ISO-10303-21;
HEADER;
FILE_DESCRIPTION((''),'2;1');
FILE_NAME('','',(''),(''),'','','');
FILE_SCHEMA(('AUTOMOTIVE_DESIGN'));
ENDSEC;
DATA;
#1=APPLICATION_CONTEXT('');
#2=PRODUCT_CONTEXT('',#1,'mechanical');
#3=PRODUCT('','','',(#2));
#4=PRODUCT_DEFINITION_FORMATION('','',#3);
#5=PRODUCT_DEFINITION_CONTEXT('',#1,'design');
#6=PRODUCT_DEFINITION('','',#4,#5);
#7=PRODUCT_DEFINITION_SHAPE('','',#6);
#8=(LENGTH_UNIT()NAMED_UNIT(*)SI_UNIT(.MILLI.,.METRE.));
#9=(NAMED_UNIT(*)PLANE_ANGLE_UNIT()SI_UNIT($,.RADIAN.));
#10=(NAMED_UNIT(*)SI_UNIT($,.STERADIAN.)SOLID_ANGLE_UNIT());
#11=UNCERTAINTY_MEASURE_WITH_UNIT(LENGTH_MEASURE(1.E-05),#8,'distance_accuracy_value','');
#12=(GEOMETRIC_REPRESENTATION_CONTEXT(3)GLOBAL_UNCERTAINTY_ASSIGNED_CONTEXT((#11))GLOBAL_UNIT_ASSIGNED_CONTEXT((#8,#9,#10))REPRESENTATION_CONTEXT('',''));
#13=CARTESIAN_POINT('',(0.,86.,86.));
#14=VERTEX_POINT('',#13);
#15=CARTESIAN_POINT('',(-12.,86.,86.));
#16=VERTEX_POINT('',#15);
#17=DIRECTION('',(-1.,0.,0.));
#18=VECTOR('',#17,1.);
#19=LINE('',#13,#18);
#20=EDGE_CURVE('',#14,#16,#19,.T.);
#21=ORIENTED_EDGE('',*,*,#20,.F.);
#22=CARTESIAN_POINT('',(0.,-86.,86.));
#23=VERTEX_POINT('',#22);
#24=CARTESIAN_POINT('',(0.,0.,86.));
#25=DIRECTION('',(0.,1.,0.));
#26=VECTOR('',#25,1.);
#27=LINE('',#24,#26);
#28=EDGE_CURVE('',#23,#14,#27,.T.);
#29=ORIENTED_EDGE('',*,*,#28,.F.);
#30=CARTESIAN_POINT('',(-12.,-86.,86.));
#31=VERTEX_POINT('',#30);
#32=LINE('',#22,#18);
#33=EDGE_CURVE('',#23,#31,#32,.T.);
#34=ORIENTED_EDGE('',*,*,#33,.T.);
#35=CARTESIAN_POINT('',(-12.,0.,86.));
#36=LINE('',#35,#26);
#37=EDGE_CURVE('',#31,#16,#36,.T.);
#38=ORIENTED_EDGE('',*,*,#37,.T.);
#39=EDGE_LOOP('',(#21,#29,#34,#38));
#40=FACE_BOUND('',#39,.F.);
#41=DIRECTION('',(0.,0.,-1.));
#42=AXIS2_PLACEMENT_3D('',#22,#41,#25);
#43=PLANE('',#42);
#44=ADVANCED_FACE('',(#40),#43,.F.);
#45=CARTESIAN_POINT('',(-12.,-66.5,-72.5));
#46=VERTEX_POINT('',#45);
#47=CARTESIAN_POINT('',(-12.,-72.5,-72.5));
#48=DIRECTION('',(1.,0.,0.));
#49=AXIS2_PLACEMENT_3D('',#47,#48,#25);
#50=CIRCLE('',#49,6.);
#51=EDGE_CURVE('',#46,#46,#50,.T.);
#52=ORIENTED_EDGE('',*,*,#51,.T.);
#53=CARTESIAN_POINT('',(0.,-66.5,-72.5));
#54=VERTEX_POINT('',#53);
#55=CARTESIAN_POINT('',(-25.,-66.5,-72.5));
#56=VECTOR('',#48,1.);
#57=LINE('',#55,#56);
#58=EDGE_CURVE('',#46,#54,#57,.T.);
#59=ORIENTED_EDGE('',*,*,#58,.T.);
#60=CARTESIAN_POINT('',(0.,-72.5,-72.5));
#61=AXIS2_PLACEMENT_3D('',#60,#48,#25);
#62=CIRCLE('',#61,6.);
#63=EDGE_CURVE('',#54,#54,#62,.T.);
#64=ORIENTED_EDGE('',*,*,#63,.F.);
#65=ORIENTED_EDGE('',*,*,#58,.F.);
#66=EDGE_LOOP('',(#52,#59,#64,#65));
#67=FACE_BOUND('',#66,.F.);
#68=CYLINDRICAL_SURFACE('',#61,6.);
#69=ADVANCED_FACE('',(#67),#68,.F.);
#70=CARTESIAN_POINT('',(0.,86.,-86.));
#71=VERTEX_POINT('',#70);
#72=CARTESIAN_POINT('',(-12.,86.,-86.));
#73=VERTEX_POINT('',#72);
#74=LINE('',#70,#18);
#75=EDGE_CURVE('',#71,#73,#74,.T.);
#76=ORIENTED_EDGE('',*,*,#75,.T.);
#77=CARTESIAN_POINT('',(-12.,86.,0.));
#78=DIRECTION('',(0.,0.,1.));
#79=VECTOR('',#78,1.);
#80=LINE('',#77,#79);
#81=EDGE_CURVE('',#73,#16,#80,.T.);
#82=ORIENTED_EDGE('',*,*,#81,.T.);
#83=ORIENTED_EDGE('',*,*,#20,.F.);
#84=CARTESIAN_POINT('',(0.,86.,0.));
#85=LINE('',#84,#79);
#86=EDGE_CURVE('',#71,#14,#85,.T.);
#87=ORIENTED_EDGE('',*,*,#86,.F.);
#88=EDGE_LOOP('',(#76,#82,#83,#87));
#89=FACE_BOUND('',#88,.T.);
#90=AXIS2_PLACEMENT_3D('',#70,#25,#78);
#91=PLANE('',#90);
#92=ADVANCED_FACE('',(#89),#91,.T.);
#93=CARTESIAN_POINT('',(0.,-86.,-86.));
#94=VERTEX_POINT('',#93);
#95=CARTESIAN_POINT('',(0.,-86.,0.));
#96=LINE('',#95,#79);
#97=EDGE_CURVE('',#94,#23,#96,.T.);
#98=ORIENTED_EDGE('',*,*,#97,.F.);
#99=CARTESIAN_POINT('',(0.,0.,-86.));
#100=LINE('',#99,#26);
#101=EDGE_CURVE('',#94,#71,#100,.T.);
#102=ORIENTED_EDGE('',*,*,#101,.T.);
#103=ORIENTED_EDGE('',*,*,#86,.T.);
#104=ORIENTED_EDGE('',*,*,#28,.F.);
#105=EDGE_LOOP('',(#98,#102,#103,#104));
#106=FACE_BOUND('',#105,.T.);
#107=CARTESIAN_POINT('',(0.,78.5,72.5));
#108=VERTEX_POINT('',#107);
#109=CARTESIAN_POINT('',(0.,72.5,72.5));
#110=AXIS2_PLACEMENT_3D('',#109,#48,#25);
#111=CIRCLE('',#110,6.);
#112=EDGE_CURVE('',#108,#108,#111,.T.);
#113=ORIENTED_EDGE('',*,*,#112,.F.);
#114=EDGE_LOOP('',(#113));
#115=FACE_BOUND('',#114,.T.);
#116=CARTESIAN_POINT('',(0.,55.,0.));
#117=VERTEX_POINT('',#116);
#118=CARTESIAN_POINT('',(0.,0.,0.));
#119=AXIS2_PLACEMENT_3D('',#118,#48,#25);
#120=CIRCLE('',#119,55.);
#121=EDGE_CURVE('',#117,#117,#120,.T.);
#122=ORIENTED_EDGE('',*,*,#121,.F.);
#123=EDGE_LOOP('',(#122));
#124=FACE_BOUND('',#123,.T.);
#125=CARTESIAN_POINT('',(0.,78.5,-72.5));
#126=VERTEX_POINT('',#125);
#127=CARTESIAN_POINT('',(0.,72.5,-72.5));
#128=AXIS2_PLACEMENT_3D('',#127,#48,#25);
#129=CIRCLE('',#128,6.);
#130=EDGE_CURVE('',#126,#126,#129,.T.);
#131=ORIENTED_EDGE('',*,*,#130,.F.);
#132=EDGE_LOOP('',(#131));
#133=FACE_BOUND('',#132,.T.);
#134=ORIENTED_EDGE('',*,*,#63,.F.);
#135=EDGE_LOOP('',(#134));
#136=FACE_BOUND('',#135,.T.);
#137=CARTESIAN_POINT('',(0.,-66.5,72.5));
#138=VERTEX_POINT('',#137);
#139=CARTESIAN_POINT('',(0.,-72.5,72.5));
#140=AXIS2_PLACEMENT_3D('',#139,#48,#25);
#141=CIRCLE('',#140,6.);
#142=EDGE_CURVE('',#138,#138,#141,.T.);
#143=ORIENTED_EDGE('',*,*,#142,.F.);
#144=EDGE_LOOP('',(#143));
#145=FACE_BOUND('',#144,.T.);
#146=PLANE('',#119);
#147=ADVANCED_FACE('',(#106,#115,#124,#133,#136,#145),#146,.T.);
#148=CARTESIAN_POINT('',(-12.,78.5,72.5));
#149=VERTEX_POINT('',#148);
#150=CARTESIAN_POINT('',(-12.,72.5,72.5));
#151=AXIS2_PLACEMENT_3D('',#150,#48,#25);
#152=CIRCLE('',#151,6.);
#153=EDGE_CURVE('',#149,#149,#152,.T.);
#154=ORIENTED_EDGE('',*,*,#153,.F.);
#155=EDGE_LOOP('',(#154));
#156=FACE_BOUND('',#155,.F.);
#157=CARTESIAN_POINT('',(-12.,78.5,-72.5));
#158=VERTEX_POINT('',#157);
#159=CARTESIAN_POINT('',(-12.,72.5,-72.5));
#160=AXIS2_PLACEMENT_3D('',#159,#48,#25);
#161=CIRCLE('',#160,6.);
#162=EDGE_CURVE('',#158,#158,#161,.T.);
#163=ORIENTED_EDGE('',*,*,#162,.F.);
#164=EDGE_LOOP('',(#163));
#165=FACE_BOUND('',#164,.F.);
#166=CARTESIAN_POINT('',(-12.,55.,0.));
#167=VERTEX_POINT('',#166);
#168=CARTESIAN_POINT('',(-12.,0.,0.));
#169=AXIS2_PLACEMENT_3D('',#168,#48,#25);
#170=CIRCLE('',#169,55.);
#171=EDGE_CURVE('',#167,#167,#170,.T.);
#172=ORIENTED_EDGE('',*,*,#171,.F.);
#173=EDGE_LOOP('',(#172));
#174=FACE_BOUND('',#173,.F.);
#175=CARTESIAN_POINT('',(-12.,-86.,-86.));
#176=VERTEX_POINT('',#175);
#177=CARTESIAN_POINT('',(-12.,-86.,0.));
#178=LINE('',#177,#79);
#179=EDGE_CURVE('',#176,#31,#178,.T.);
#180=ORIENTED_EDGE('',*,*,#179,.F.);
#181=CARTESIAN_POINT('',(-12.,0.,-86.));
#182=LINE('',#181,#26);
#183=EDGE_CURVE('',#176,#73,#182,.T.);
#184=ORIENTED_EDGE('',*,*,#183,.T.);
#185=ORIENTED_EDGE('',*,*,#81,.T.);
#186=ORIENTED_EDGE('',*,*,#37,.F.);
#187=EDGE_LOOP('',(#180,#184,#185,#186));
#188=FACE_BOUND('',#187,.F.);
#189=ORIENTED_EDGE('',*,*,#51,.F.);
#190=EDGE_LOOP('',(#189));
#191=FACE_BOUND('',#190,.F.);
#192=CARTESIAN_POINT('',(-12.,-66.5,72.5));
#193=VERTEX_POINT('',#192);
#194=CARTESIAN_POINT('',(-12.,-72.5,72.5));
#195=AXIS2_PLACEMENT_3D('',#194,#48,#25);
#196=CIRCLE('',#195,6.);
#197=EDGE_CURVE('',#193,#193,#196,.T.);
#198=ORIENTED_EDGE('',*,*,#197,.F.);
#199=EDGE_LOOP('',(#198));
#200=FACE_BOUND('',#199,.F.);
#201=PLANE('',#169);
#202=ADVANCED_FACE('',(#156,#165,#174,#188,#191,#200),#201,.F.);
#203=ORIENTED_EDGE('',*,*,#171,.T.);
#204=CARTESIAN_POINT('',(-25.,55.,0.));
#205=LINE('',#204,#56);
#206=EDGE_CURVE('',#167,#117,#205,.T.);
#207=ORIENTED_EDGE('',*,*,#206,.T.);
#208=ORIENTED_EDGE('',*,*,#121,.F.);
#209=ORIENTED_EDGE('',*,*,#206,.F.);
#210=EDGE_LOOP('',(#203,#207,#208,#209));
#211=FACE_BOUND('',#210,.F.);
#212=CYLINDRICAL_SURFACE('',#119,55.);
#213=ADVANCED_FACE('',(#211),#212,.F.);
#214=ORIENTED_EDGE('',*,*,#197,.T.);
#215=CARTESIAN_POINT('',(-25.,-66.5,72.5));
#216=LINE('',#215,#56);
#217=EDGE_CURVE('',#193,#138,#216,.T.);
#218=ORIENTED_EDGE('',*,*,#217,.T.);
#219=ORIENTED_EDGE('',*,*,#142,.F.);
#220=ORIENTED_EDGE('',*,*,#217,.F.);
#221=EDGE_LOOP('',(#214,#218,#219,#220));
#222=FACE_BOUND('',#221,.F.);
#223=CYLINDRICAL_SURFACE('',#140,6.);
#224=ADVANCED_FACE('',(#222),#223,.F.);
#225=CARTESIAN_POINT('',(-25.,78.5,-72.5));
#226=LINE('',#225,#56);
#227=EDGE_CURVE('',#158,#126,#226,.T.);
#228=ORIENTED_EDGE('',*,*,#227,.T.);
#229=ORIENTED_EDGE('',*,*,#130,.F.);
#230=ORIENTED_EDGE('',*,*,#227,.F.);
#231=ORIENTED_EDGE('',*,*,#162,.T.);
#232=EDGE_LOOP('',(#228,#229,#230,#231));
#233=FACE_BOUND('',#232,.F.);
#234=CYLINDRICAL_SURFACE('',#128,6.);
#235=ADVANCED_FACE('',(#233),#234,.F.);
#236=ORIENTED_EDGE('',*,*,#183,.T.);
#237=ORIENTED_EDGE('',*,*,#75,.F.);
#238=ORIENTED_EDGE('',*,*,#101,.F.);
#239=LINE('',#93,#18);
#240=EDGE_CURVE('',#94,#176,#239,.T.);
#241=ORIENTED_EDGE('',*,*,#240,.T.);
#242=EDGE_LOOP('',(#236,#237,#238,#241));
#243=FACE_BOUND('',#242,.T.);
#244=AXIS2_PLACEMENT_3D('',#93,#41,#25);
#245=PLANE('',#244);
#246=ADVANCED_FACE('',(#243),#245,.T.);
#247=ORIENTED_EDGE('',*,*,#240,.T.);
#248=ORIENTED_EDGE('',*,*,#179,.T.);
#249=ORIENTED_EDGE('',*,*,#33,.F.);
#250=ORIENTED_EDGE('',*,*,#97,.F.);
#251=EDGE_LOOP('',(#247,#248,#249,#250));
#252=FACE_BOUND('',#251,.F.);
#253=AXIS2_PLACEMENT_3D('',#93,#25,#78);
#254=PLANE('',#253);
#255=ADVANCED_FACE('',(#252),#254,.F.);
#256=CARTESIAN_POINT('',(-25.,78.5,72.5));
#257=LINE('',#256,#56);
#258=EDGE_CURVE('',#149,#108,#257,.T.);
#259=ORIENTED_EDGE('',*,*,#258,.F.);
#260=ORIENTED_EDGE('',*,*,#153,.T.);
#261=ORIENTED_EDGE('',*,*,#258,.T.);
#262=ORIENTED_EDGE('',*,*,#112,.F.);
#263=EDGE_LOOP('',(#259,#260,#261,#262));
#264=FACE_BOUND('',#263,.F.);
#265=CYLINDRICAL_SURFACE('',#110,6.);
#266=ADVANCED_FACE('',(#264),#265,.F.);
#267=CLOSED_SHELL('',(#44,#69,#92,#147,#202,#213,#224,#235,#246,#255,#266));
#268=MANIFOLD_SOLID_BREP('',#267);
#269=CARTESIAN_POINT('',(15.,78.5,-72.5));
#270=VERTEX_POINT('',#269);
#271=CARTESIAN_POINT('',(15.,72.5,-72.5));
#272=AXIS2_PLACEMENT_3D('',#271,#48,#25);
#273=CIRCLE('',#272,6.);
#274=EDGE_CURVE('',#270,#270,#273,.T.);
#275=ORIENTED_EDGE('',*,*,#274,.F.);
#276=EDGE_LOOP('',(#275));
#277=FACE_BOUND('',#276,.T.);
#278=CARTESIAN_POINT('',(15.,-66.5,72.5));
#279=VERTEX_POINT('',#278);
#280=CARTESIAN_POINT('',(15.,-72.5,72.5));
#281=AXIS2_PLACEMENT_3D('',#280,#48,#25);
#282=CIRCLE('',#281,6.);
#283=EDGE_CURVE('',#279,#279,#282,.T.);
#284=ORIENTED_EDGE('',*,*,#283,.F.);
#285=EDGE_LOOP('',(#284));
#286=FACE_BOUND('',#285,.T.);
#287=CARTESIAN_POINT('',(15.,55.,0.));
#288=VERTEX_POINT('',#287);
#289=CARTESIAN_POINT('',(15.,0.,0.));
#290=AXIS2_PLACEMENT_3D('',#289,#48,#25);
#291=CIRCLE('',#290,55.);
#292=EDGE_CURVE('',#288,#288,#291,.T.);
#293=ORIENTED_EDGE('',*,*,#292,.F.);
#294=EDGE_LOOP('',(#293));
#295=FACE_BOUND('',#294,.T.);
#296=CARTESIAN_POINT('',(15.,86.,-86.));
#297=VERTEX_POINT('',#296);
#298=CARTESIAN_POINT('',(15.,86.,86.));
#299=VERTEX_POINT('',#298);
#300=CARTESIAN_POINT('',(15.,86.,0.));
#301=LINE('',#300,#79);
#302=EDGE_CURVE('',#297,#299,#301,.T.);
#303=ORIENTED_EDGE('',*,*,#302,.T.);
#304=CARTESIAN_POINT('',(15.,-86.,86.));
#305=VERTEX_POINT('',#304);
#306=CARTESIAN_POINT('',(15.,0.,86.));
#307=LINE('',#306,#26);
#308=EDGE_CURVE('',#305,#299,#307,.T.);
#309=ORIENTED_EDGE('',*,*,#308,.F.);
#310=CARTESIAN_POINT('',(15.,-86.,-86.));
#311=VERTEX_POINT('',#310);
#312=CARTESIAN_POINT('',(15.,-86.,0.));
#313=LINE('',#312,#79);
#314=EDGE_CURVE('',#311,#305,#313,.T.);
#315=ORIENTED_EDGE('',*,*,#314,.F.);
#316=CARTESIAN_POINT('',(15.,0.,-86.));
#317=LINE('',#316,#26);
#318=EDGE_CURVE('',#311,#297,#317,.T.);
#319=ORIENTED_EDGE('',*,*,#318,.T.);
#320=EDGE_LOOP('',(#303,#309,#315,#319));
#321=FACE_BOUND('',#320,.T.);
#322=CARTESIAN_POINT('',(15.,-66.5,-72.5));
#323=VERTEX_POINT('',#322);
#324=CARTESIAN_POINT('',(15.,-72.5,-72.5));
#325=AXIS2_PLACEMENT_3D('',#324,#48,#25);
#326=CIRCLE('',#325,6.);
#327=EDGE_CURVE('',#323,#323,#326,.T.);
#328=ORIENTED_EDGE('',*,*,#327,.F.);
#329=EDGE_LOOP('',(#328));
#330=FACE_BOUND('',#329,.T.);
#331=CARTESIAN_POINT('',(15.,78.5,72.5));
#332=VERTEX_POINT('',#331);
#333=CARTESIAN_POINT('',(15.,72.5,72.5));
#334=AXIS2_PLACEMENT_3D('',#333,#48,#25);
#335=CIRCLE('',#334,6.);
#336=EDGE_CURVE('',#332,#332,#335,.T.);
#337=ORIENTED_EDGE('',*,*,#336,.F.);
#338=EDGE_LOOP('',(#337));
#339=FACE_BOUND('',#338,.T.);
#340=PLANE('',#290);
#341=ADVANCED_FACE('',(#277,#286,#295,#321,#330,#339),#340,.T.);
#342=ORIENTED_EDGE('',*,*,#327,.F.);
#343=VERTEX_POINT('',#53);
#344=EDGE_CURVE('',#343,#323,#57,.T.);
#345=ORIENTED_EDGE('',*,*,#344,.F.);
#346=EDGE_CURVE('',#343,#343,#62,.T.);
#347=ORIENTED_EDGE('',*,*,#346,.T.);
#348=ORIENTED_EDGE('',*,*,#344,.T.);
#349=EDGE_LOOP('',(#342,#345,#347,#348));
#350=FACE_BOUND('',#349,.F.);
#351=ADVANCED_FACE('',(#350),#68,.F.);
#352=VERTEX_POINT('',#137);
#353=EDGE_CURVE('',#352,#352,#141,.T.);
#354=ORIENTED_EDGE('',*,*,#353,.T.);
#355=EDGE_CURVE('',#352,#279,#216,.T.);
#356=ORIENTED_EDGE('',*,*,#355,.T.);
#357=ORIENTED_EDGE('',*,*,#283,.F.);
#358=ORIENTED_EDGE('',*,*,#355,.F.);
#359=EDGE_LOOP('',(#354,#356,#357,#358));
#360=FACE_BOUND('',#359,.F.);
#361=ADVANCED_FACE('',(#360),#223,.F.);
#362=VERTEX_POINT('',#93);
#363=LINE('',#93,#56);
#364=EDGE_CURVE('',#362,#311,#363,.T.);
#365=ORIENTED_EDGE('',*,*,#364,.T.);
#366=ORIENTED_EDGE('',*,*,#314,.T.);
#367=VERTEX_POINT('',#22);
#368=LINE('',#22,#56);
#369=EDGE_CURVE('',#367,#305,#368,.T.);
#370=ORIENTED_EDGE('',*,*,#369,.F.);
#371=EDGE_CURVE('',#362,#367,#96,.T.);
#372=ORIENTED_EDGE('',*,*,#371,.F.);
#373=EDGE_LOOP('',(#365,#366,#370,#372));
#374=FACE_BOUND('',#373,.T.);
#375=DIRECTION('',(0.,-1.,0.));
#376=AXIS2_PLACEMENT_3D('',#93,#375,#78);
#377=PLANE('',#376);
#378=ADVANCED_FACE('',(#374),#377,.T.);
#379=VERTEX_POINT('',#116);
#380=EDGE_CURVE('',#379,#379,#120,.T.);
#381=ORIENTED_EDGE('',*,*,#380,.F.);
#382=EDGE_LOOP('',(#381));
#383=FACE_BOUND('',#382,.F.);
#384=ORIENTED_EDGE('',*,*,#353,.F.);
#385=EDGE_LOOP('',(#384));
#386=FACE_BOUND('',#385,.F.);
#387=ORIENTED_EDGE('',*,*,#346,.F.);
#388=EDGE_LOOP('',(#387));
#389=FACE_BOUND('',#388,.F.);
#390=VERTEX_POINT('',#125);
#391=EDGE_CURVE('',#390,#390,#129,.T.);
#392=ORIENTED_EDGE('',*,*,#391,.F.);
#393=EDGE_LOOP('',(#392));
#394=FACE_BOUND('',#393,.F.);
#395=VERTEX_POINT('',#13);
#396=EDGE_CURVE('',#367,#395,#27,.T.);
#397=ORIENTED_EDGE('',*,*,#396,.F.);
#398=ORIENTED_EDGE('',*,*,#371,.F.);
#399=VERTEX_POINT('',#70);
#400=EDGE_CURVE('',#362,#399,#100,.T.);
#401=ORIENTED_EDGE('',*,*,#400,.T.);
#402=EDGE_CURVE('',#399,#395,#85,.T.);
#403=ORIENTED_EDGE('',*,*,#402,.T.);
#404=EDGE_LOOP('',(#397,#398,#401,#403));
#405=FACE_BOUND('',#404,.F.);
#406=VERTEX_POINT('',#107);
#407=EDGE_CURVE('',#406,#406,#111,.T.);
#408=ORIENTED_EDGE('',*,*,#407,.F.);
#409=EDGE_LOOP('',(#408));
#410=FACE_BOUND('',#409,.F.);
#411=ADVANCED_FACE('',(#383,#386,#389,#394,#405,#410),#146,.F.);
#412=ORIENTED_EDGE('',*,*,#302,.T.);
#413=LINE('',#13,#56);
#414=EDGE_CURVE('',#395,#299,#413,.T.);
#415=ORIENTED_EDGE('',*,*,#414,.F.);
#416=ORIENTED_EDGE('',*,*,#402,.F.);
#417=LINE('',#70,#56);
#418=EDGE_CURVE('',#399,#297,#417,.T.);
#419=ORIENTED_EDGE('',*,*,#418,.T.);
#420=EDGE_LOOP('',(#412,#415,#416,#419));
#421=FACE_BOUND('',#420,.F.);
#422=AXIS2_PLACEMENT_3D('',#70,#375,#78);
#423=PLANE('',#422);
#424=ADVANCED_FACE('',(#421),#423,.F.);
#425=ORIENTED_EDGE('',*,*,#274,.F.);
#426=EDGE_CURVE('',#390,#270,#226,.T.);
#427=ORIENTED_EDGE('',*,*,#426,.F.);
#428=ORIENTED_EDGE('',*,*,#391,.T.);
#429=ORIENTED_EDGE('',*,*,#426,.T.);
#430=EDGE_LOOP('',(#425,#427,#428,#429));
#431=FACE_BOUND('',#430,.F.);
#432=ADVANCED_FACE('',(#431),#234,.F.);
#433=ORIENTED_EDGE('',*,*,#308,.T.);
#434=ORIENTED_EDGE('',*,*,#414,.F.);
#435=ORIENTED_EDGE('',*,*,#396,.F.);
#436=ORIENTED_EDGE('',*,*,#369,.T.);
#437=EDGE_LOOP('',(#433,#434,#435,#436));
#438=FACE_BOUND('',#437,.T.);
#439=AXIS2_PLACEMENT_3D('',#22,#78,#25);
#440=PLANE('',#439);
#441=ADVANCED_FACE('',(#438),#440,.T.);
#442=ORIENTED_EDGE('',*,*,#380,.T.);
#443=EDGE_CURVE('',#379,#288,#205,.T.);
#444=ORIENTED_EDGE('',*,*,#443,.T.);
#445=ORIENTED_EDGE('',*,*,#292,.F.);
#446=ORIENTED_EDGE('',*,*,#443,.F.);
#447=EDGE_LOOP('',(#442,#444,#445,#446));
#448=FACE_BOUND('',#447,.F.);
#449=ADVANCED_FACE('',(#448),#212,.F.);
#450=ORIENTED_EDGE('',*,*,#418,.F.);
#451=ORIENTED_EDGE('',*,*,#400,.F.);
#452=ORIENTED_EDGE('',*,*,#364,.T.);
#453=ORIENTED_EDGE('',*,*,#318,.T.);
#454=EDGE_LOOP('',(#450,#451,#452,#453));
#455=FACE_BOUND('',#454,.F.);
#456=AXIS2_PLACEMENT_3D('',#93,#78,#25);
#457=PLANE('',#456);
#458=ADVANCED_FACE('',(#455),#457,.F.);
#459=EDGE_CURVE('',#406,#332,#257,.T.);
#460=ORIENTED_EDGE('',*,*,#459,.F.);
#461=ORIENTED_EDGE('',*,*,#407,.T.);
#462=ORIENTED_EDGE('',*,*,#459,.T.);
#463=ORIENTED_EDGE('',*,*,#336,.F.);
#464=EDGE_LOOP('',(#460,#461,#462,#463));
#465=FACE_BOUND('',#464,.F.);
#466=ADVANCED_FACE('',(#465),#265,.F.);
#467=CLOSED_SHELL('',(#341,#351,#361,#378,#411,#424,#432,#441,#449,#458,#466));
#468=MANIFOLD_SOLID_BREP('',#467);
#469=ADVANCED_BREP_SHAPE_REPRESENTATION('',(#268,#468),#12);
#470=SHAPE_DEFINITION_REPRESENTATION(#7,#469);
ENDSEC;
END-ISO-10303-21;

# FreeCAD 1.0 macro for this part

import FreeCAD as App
import Part
import Sketcher


def add_polygon(sketch, points):
    """Adds a closed chain of lines whose ends are joined by coincident constraints."""
    first, n = sketch.GeometryCount, len(points)
    for a, b in zip(points, points[1:] + points[:1]):
        sketch.addGeometry(Part.LineSegment(App.Vector(*a, 0), App.Vector(*b, 0)), False)
    for i in range(n):
        sketch.addConstraint(Sketcher.Constraint("Coincident", first + i, 2, first + (i + 1) % n, 1))

doc = App.newDocument("Part")
body = doc.addObject("PartDesign::Body", "Body")

# Sketch on YZ plane
sketch1 = body.newObject("Sketcher::SketchObject", "Sketch")
sketch1.AttachmentSupport = (doc.getObject("YZ_Plane"), [""])
sketch1.MapMode = "FlatFace"
add_polygon(sketch1, [(-86, 86), (-86, -86), (86, -86), (86, 86)])  # lines 0-3
sketch1.addConstraint(Sketcher.Constraint("Vertical", 0))
sketch1.addConstraint(Sketcher.Constraint("Horizontal", 1))
sketch1.addConstraint(Sketcher.Constraint("Vertical", 2))
sketch1.addConstraint(Sketcher.Constraint("Horizontal", 3))
sketch1.addConstraint(Sketcher.Constraint("Symmetric", 0, 2, 2, 2, -1, 1))
sketch1.addConstraint(Sketcher.Constraint("Equal", 3, 0))
sketch1.addConstraint(Sketcher.Constraint("DistanceX", 1, 1, 1, 2, 172.0))
pad1 = body.newObject("PartDesign::Pad", "Pad")
pad1.Profile = sketch1
pad1.Length = 15
body2 = doc.addObject("PartDesign::Body", "Body001")

# Sketch on YZ plane
sketch2 = body2.newObject("Sketcher::SketchObject", "Sketch001")
sketch2.AttachmentSupport = (doc.getObject("YZ_Plane001"), [""])
sketch2.MapMode = "FlatFace"
add_polygon(sketch2, [(-86, 86), (-86, -86), (86, -86), (86, 86)])  # lines 0-3
sketch2.addConstraint(Sketcher.Constraint("Vertical", 0))
sketch2.addConstraint(Sketcher.Constraint("Horizontal", 1))
sketch2.addConstraint(Sketcher.Constraint("Vertical", 2))
sketch2.addConstraint(Sketcher.Constraint("Horizontal", 3))
sketch2.addConstraint(Sketcher.Constraint("Symmetric", 0, 2, 2, 2, -1, 1))
sketch2.addConstraint(Sketcher.Constraint("Equal", 3, 0))
sketch2.addConstraint(Sketcher.Constraint("DistanceX", 1, 1, 1, 2, 172.0))
pad2 = body2.newObject("PartDesign::Pad", "Pad001")
pad2.Profile = sketch2
pad2.Length = 12
pad2.Reversed = True
body3 = doc.addObject("PartDesign::Body", "Body002")
body3.AllowCompound = True

# Sketch on YZ plane
sketch3 = body3.newObject("Sketcher::SketchObject", "Sketch002")
sketch3.AttachmentSupport = (doc.getObject("YZ_Plane002"), [""])
sketch3.MapMode = "FlatFace"
sketch3.addGeometry(Part.Circle(App.Vector(-72, 72, 0), App.Vector(0, 0, 1), 6), False)
sketch3.addGeometry(Part.Circle(App.Vector(-72, -72, 0), App.Vector(0, 0, 1), 6), False)
sketch3.addGeometry(Part.Circle(App.Vector(72, 72, 0), App.Vector(0, 0, 1), 6), False)
sketch3.addGeometry(Part.Circle(App.Vector(72, -72, 0), App.Vector(0, 0, 1), 6), False)
sketch3.addConstraint(Sketcher.Constraint("Equal", 0, 1))
sketch3.addConstraint(Sketcher.Constraint("Equal", 1, 2))
sketch3.addConstraint(Sketcher.Constraint("Equal", 2, 3))
sketch3.addConstraint(Sketcher.Constraint("Symmetric", 1, 3, 2, 3, -1, 1))
sketch3.addConstraint(Sketcher.Constraint("Symmetric", 0, 3, 3, 3, -1, 1))
sketch3.addConstraint(Sketcher.Constraint("Symmetric", 0, 3, 2, 3, -2))
sketch3.addConstraint(Sketcher.Constraint("Diameter", 0, 12.0))
sketch3.addConstraint(Sketcher.Constraint("DistanceY", 1, 3, 0, 3, 145.0))
sketch3.addConstraint(Sketcher.Constraint("DistanceX", 0, 3, 2, 3, 145.0))
pad3 = body3.newObject("PartDesign::Pad", "Pad002")
pad3.Profile = sketch3
pad3.Type = "TwoLengths"
pad3.Length = 25
pad3.Length2 = 25
doc.recompute()

body4 = doc.addObject("PartDesign::Body", "Body003")
body4.BaseFeature = body3
boolean = body.newObject("PartDesign::Boolean", "Boolean")
boolean.Type = "Cut"
boolean.addObjects([body4])
doc.recompute()

boolean2 = body2.newObject("PartDesign::Boolean", "Boolean001")
boolean2.Type = "Cut"
boolean2.addObjects([body3])
body5 = doc.addObject("PartDesign::Body", "Body004")

# Sketch on YZ plane
sketch4 = body5.newObject("Sketcher::SketchObject", "Sketch003")
sketch4.AttachmentSupport = (doc.getObject("YZ_Plane004"), [""])
sketch4.MapMode = "FlatFace"
sketch4.addGeometry(Part.Circle(App.Vector(0, 0, 0), App.Vector(0, 0, 1), 55), False)
sketch4.addConstraint(Sketcher.Constraint("Coincident", 0, 3, -1, 1))
sketch4.addConstraint(Sketcher.Constraint("Diameter", 0, 110.0))
pad4 = body5.newObject("PartDesign::Pad", "Pad003")
pad4.Profile = sketch4
pad4.Type = "TwoLengths"
pad4.Length = 25
pad4.Length2 = 25
doc.recompute()

body6 = doc.addObject("PartDesign::Body", "Body005")
body6.BaseFeature = body5
boolean3 = body.newObject("PartDesign::Boolean", "Boolean002")
boolean3.Type = "Cut"
boolean3.addObjects([body6])
doc.recompute()

boolean4 = body2.newObject("PartDesign::Boolean", "Boolean003")
boolean4.Type = "Cut"
boolean4.addObjects([body5])

doc.recompute()
